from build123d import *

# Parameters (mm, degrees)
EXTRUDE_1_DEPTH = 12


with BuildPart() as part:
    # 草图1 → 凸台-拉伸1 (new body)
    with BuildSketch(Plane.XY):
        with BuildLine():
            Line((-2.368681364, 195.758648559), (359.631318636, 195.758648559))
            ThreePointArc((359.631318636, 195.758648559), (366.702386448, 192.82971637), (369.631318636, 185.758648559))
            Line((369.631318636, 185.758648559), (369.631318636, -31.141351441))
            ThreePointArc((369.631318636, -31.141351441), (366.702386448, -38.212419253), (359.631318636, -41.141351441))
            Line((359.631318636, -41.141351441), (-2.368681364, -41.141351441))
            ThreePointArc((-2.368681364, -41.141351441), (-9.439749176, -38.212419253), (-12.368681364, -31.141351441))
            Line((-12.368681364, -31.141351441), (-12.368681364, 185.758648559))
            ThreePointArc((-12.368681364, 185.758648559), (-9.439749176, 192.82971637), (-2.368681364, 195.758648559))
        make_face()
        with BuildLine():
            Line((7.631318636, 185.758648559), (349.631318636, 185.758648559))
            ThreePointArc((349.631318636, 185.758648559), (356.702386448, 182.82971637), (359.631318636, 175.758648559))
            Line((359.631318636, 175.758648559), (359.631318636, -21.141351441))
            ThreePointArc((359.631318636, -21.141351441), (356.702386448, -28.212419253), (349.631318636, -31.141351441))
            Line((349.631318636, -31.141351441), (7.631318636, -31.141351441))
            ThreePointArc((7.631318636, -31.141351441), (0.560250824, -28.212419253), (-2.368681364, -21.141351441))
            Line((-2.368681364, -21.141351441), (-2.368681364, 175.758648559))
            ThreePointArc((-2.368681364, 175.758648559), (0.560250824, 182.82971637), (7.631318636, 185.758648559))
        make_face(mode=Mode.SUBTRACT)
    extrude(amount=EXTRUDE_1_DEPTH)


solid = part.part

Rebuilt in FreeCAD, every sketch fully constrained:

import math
import FreeCAD as App
import Part
import Sketcher
Q = App.Units.Quantity

doc = App.newDocument("Part")
body = doc.addObject("PartDesign::Body", "Body")

# Sketch on XY plane
sketch1 = doc.addObject("Sketcher::SketchObject", "Sketch")
body.addObject(sketch1)
sketch1.AttachmentSupport = (doc.XY_Plane, [""])
sketch1.MapMode = "FlatFace"
sketch1.addGeometry(Part.LineSegment(App.Vector(360, 196, 0), App.Vector(-2, 196, 0)), False)
sketch1.addGeometry(Part.ArcOfCircle(Part.Circle(App.Vector(-2, 186, 0), App.Vector(0, 0, 1), 10), math.radians(90), math.radians(180)), False)
sketch1.addGeometry(Part.LineSegment(App.Vector(-12, 186, 0), App.Vector(-12, -31, 0)), False)
sketch1.addGeometry(Part.ArcOfCircle(Part.Circle(App.Vector(-2, -31, 0), App.Vector(0, 0, 1), 10), math.radians(180), math.radians(270)), False)
sketch1.addGeometry(Part.LineSegment(App.Vector(-2, -41, 0), App.Vector(360, -41, 0)), False)
sketch1.addGeometry(Part.ArcOfCircle(Part.Circle(App.Vector(360, -31, 0), App.Vector(0, 0, 1), 10), math.radians(-90), math.radians(0)), False)
sketch1.addGeometry(Part.LineSegment(App.Vector(370, -31, 0), App.Vector(370, 186, 0)), False)
sketch1.addGeometry(Part.ArcOfCircle(Part.Circle(App.Vector(360, 186, 0), App.Vector(0, 0, 1), 10), math.radians(0), math.radians(90)), False)
sketch1.addGeometry(Part.LineSegment(App.Vector(8, 186, 0), App.Vector(350, 186, 0)), False)
sketch1.addGeometry(Part.ArcOfCircle(Part.Circle(App.Vector(350, 176, 0), App.Vector(0, 0, 1), 10), math.radians(0), math.radians(90)), False)
sketch1.addGeometry(Part.LineSegment(App.Vector(360, 176, 0), App.Vector(360, -21, 0)), False)
sketch1.addGeometry(Part.ArcOfCircle(Part.Circle(App.Vector(350, -21, 0), App.Vector(0, 0, 1), 10), math.radians(-90), math.radians(0)), False)
sketch1.addGeometry(Part.LineSegment(App.Vector(350, -31, 0), App.Vector(8, -31, 0)), False)
sketch1.addGeometry(Part.ArcOfCircle(Part.Circle(App.Vector(8, -21, 0), App.Vector(0, 0, 1), 10), math.radians(180), math.radians(270)), False)
sketch1.addGeometry(Part.LineSegment(App.Vector(-2, -21, 0), App.Vector(-2, 176, 0)), False)
sketch1.addGeometry(Part.ArcOfCircle(Part.Circle(App.Vector(8, 176, 0), App.Vector(0, 0, 1), 10), math.radians(90), math.radians(180)), False)
sketch1.addConstraint(Sketcher.Constraint("Tangent", 0, 2, 1, 1))
sketch1.addConstraint(Sketcher.Constraint("Tangent", 1, 2, 2, 1))
sketch1.addConstraint(Sketcher.Constraint("Tangent", 2, 2, 3, 1))
sketch1.addConstraint(Sketcher.Constraint("Tangent", 3, 2, 4, 1))
sketch1.addConstraint(Sketcher.Constraint("Tangent", 4, 2, 5, 1))
sketch1.addConstraint(Sketcher.Constraint("Tangent", 5, 2, 6, 1))
sketch1.addConstraint(Sketcher.Constraint("Tangent", 6, 2, 7, 1))
sketch1.addConstraint(Sketcher.Constraint("Tangent", 7, 2, 0, 1))
sketch1.addConstraint(Sketcher.Constraint("Tangent", 8, 2, 9, 2))
sketch1.addConstraint(Sketcher.Constraint("Tangent", 9, 1, 10, 1))
sketch1.addConstraint(Sketcher.Constraint("Tangent", 10, 2, 11, 2))
sketch1.addConstraint(Sketcher.Constraint("Tangent", 11, 1, 12, 1))
sketch1.addConstraint(Sketcher.Constraint("Tangent", 12, 2, 13, 2))
sketch1.addConstraint(Sketcher.Constraint("Tangent", 13, 1, 14, 1))
sketch1.addConstraint(Sketcher.Constraint("Tangent", 14, 2, 15, 2))
sketch1.addConstraint(Sketcher.Constraint("Tangent", 15, 1, 8, 1))
sketch1.addConstraint(Sketcher.Constraint("Horizontal", 0))
sketch1.addConstraint(Sketcher.Constraint("Vertical", 2))
sketch1.addConstraint(Sketcher.Constraint("Horizontal", 4))
sketch1.addConstraint(Sketcher.Constraint("Vertical", 6))
sketch1.addConstraint(Sketcher.Constraint("Horizontal", 8))
sketch1.addConstraint(Sketcher.Constraint("Vertical", 10))
sketch1.addConstraint(Sketcher.Constraint("Horizontal", 12))
sketch1.addConstraint(Sketcher.Constraint("Vertical", 14))
sketch1.addConstraint(Sketcher.Constraint("Equal", 1, 3))
sketch1.addConstraint(Sketcher.Constraint("Equal", 3, 5))
sketch1.addConstraint(Sketcher.Constraint("Equal", 5, 7))
sketch1.addConstraint(Sketcher.Constraint("Equal", 7, 9))
sketch1.addConstraint(Sketcher.Constraint("Equal", 9, 11))
sketch1.addConstraint(Sketcher.Constraint("Equal", 11, 13))
sketch1.addConstraint(Sketcher.Constraint("Equal", 13, 15))
sketch1.addConstraint(Sketcher.Constraint("Horizontal", 6, 2, 8, 2))
sketch1.addConstraint(Sketcher.Constraint("Horizontal", 5, 2, 11, 1))
sketch1.addConstraint(Sketcher.Constraint("Vertical", 7, 2, 9, 1))
sketch1.addConstraint(Sketcher.Constraint("Vertical", 3, 2, 13, 1))
sketch1.addConstraint(Sketcher.Constraint("Radius", 1, Q("10 mm")))
sketch1.addConstraint(Sketcher.Constraint("DistanceX", 0, 2, 0, 1, Q("362 mm")))
sketch1.addConstraint(Sketcher.Constraint("DistanceY", 2, 2, 2, 1, Q("216.9 mm")))
sketch1.addConstraint(Sketcher.Constraint("DistanceX", 1, 3, -1, 1, Q("2.368681 mm")))
sketch1.addConstraint(Sketcher.Constraint("DistanceY", -1, 1, 1, 3, Q("185.758649 mm")))
pad1 = doc.addObject("PartDesign::Pad", "Pad")
body.addObject(pad1)
pad1.Profile = sketch1
pad1.Length = 12

doc.recompute()
